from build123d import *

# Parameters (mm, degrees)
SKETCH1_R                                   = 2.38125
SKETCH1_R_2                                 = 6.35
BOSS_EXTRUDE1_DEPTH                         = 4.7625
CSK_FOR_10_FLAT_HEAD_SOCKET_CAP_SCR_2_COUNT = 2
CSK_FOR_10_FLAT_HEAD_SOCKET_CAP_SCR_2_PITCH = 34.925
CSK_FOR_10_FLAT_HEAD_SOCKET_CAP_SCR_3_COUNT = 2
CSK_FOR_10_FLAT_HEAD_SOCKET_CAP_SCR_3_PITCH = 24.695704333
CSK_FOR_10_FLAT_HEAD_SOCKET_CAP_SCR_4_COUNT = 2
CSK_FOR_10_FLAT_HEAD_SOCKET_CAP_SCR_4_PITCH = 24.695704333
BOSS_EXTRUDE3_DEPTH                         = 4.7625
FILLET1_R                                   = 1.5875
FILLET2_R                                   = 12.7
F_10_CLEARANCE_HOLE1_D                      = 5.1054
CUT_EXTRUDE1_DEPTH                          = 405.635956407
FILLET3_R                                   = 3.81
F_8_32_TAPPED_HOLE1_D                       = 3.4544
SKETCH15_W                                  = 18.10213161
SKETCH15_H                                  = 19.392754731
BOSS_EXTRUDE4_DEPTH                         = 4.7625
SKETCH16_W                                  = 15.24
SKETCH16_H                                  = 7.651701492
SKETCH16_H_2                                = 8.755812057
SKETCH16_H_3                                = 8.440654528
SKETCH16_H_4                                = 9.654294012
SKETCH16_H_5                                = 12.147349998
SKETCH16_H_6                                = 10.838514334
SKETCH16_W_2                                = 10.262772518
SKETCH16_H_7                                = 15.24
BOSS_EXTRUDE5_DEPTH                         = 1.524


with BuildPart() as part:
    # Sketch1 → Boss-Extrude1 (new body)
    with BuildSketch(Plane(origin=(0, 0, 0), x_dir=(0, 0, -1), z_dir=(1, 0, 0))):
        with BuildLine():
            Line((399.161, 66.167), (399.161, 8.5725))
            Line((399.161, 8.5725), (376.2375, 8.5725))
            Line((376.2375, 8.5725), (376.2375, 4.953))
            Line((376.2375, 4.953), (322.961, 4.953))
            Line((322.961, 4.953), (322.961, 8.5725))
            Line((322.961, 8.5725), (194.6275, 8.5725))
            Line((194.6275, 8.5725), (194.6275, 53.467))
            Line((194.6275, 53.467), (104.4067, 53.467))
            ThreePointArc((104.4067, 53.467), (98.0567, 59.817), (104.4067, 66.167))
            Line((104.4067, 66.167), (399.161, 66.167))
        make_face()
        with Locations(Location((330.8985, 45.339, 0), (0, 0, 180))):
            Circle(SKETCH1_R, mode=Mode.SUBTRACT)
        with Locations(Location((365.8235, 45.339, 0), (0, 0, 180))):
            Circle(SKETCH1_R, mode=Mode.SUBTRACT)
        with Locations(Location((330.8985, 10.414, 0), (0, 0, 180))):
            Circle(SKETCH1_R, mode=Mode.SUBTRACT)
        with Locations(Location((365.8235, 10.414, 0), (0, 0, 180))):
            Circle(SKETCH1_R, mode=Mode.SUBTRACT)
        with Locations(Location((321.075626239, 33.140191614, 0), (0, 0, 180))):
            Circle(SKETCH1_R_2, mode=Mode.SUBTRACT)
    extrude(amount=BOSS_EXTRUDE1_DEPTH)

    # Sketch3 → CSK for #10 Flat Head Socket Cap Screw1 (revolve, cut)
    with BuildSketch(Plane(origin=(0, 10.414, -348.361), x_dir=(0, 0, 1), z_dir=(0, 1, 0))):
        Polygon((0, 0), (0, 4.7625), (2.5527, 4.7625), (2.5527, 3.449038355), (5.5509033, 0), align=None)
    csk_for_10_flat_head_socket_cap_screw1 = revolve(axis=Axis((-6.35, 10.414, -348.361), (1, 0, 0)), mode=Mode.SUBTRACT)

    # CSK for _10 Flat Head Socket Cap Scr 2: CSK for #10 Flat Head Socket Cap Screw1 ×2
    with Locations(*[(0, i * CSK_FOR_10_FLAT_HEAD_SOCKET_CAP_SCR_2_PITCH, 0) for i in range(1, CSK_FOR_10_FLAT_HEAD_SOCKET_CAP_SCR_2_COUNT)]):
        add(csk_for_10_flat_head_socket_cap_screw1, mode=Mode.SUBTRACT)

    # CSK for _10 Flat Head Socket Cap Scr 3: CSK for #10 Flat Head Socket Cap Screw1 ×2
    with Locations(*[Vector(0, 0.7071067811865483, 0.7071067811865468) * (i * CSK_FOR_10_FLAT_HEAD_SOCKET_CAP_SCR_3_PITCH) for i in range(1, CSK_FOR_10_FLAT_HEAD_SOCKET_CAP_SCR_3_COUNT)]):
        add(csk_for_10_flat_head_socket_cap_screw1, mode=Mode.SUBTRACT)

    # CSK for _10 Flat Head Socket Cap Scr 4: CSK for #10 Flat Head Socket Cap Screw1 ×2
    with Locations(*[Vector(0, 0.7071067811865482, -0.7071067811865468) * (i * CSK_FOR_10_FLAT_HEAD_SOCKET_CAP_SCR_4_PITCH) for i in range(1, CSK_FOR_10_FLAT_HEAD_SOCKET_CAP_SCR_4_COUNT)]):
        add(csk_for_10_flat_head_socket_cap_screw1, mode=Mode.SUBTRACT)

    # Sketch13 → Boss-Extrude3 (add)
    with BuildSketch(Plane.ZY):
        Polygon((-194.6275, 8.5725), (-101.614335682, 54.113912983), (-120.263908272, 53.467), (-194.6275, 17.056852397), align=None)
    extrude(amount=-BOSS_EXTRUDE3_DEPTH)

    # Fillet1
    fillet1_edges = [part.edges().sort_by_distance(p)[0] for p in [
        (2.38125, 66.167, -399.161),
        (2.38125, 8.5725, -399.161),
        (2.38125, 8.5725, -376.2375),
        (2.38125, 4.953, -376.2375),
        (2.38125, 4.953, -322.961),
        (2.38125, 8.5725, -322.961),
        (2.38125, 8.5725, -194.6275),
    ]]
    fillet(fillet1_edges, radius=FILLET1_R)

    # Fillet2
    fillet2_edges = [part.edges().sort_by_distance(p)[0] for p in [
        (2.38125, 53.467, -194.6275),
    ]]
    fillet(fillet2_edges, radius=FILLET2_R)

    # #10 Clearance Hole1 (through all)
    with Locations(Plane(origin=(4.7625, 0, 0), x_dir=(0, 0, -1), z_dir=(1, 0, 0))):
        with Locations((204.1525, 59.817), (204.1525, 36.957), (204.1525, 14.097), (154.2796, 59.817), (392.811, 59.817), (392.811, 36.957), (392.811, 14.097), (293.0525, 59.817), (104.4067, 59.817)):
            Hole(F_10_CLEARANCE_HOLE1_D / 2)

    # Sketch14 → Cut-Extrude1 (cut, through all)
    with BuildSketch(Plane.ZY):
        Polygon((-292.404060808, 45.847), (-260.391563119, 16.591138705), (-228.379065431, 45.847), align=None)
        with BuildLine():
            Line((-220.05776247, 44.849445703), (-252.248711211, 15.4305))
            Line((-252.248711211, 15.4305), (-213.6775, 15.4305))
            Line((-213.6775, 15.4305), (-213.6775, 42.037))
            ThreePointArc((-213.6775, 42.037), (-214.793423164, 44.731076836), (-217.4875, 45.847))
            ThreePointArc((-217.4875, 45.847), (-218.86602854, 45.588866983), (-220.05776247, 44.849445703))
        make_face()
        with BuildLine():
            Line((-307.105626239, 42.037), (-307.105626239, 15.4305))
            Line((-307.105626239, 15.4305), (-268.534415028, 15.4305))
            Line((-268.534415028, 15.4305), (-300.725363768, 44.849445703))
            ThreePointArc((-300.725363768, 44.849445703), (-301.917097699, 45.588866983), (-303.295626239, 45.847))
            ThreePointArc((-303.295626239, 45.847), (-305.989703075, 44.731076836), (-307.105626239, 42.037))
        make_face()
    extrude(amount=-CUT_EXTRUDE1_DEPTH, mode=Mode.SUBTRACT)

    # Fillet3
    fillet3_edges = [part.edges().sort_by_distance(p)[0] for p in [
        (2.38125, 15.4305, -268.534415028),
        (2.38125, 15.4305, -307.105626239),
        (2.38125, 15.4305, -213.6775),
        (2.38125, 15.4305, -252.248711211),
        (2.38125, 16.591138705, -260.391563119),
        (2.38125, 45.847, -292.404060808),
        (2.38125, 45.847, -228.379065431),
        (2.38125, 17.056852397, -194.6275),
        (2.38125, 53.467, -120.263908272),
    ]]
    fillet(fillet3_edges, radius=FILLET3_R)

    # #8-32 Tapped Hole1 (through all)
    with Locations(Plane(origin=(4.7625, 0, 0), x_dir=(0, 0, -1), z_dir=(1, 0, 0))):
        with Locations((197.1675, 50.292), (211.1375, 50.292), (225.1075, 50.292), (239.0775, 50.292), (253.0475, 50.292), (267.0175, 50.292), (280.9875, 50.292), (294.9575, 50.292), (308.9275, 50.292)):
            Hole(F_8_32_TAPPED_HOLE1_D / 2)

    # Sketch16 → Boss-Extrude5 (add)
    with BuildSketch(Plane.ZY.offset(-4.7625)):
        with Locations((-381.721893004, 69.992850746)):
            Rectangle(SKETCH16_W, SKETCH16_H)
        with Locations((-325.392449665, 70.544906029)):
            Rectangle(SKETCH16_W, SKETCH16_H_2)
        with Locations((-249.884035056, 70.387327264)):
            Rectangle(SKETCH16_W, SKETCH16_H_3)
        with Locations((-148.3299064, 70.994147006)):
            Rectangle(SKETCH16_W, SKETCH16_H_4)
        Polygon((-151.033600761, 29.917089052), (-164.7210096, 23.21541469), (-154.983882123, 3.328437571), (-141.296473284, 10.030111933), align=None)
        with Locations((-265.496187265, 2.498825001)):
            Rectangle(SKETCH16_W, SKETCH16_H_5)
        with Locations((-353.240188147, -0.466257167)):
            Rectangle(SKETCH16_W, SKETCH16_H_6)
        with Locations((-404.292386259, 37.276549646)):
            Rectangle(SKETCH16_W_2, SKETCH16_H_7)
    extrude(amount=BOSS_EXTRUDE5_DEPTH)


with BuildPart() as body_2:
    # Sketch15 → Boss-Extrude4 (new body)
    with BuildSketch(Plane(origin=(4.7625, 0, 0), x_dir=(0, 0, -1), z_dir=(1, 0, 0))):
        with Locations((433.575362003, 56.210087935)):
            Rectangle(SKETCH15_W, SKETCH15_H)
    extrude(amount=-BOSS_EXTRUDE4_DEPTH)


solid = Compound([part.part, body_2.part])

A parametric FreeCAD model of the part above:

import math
import FreeCAD as App
import Part
import Sketcher

V = App.Vector
Q = App.Units.Quantity


def edges_at(feature, points):
    """Names of the edges that pass closest to the given points."""
    edges = feature.Shape.Edges
    near = lambda p: min(range(len(edges)), key=lambda i: edges[i].distToShape(Part.Vertex(*p))[0])
    return sorted({f"Edge{near(p) + 1}" for p in points})


def add_polygon(sketch, points):
    """Adds a closed chain of lines whose ends are joined by coincident constraints."""
    first, n = sketch.GeometryCount, len(points)
    for a, b in zip(points, points[1:] + points[:1]):
        sketch.addGeometry(Part.LineSegment(App.Vector(*a, 0), App.Vector(*b, 0)), False)
    for i in range(n):
        sketch.addConstraint(Sketcher.Constraint("Coincident", first + i, 2, first + (i + 1) % n, 1))

doc = App.newDocument("Part")
params = doc.addObject("Spreadsheet::Sheet", "Params")
for row, (alias, value) in enumerate([
    ("sketch1_diameter", "0.5 in"),
    ("sketch1_diameter2", "0.1875 in"),
    ("sketch1_height", "3.552 in"),
    ("pad1_length", "0.1875 in"),
    ("sketch2_width", "0.1875 in"),
    ("groove_angle", "360 deg"),
    ("linearpattern_pitch", "1.375 in"),
    ("linearpattern2_pitch", "24.695704 mm"),
    ("linearpattern3_pitch", "24.695704 mm"),
    ("pad2_length", "0.1875 in"),
    ("fillet_radius", "0.0625 in"),
    ("fillet2_radius", "0.5 in"),
    ("sketch4_diameter", "0.201 in"),
    ("hole_diameter", "0.201 in"),
    ("sketch5_radius", "0.15 in"),
    ("fillet3_radius", "0.15 in"),
    ("sketch6_diameter", "0.136 in"),
    ("hole2_diameter", "0.136 in"),
    ("sketch7_width", "0.6 in"),
    ("sketch7_length", "0.6 in"),
    ("pad3_length", "0.06 in"),
    ("pad4_length", "0.1875 in"),
], start=1):
    params.set(f"A{row}", alias)
    params.set(f"B{row}", "=" + value)
    params.setAlias(f"B{row}", alias)

body = doc.addObject("PartDesign::Body", "Body")

sketch1 = body.newObject("Sketcher::SketchObject", "Sketch")
sketch1.AttachmentSupport = (doc.getObject("YZ_Plane"), [""])
sketch1.MapMode = "FlatFace"
sketch1.addGeometry([
    Part.LineSegment(V(8.6, -399.2, 0), V(66.2, -399.2, 0)),
    Part.LineSegment(V(66.2, -399.2, 0), V(66.2, -104.4, 0)),
    Part.ArcOfCircle(Part.Circle(V(59.8, -104.4, 0), V(0, 0, 1), 6.3), math.radians(0), math.radians(180)),
    Part.LineSegment(V(53.5, -104.4, 0), V(53.5, -194.6, 0)),
    Part.LineSegment(V(53.5, -194.6, 0), V(8.6, -194.6, 0)),
    Part.LineSegment(V(8.6, -194.6, 0), V(8.6, -323, 0)),
    Part.LineSegment(V(8.6, -323, 0), V(5, -323, 0)),
    Part.LineSegment(V(5, -323, 0), V(5, -376.2, 0)),
    Part.LineSegment(V(5, -376.2, 0), V(8.6, -376.2, 0)),
    Part.LineSegment(V(8.6, -376.2, 0), V(8.6, -399.2, 0)),
    Part.Circle(V(10.4, -365.8, 0), V(0, 0, 1), 2.4),
    Part.Circle(V(10.4, -330.9, 0), V(0, 0, 1), 2.4),
    Part.Circle(V(45.3, -365.8, 0), V(0, 0, 1), 2.4),
    Part.Circle(V(33.1, -321.1, 0), V(0, 0, 1), 6.3),
    Part.Circle(V(45.3, -330.9, 0), V(0, 0, 1), 2.4),
], False)
sketch1.addConstraint([
    Sketcher.Constraint("Coincident", 0, 2, 1, 1),
    Sketcher.Constraint("Tangent", 1, 2, 2, 1),
    Sketcher.Constraint("Tangent", 2, 2, 3, 1),
    Sketcher.Constraint("Coincident", 3, 2, 4, 1),
    Sketcher.Constraint("Coincident", 4, 2, 5, 1),
    Sketcher.Constraint("Coincident", 5, 2, 6, 1),
    Sketcher.Constraint("Coincident", 6, 2, 7, 1),
    Sketcher.Constraint("Coincident", 7, 2, 8, 1),
    Sketcher.Constraint("Coincident", 8, 2, 9, 1),
    Sketcher.Constraint("Coincident", 9, 2, 0, 1),
    Sketcher.Constraint("Horizontal", 0),
    Sketcher.Constraint("Vertical", 1),
    Sketcher.Constraint("Vertical", 3),
    Sketcher.Constraint("Horizontal", 4),
    Sketcher.Constraint("Vertical", 5),
    Sketcher.Constraint("Horizontal", 6),
    Sketcher.Constraint("Vertical", 7),
    Sketcher.Constraint("Horizontal", 8),
    Sketcher.Constraint("Vertical", 9),
    Sketcher.Constraint("Equal", 10, 11),
    Sketcher.Constraint("Equal", 11, 12),
    Sketcher.Constraint("Equal", 2, 13),
    Sketcher.Constraint("Equal", 12, 14),
    Sketcher.Constraint("Horizontal", 10, 3, 12, 3),
    Sketcher.Constraint("Horizontal", 11, 3, 14, 3),
    Sketcher.Constraint("Vertical", 10, 3, 11, 3),
    Sketcher.Constraint("Vertical", 12, 3, 14, 3),
    Sketcher.Constraint("Vertical", 5, 2, 8, 2),
    Sketcher.Constraint("Diameter", 13, Q("0.5 in")),
    Sketcher.Constraint("Diameter", 10, Q("0.1875 in")),
    Sketcher.Constraint("DistanceY", 3, 2, 3, 1, Q("3.552 in")),
    Sketcher.Constraint("DistanceX", -1, 1, 10, 3, Q("0.41 in")),
    Sketcher.Constraint("DistanceX", 12, 3, 2, 3, Q("0.57 in")),
    Sketcher.Constraint("DistanceX", 6, 2, 14, 3, Q("1.59 in")),
    Sketcher.Constraint("DistanceY", 7, 2, 10, 3, Q("0.41 in")),
    Sketcher.Constraint("DistanceX", 0, 1, 0, 2, Q("2.2675 in")),
    Sketcher.Constraint("DistanceY", 1, 1, 1, 2, Q("11.6045 in")),
    Sketcher.Constraint("DistanceY", 5, 2, 5, 1, Q("5.0525 in")),
    Sketcher.Constraint("DistanceY", 7, 2, 7, 1, Q("2.0975 in")),
    Sketcher.Constraint("DistanceX", -1, 1, 2, 3, Q("2.355 in")),
    Sketcher.Constraint("DistanceY", 0, 2, -1, 1, Q("15.715 in")),
    Sketcher.Constraint("DistanceY", 10, 3, 11, 3, Q("1.375 in")),
    Sketcher.Constraint("DistanceX", -1, 1, 13, 3, 33.140192),
    Sketcher.Constraint("DistanceY", 13, 3, -1, 1, 321.075626),
])
sketch1.setExpression("Constraints[28]", "Params.sketch1_diameter")
sketch1.setExpression("Constraints[29]", "Params.sketch1_diameter2")
sketch1.setExpression("Constraints[30]", "Params.sketch1_height")
pad1 = body.newObject("PartDesign::Pad", "Pad")
pad1.Profile = sketch1
pad1.setExpression("Length", "Params.pad1_length")

sketch2 = body.newObject("Sketcher::SketchObject", "Sketch001")
sketch2.AttachmentSupport = (doc.getObject("XZ_Plane"), [""])
sketch2.MapMode = "FlatFace"
sketch2.AttachmentOffset = App.Placement(V(0, 0, -0.41 * 25.4), App.Rotation())
add_polygon(sketch2, [(4.8, -348.4), (0, -348.4), (0, -342.8), (3.4, -345.8), (4.8, -345.8)])
sketch2.addGeometry(Part.LineSegment(V(0, -348.4, 0), V(4.8, -348.4, 0)), True)
sketch2.addConstraint([
    Sketcher.Constraint("Horizontal", 0),
    Sketcher.Constraint("Vertical", 1),
    Sketcher.Constraint("Horizontal", 3),
    Sketcher.Constraint("Vertical", 4),
    Sketcher.Constraint("Horizontal", 5),
    Sketcher.Constraint("Coincident", 5, 1, 0, 2),
    Sketcher.Constraint("PointOnObject", 0, 2, -2),
    Sketcher.Constraint("Vertical", 3, 2, 5, 2),
    Sketcher.Constraint("Angle", 2, Q("-41 deg")),
    Sketcher.Constraint("DistanceX", 0, 2, 0, 1, Q("0.1875 in")),
    Sketcher.Constraint("DistanceY", 4, 2, 4, 1, Q("0.1005 in")),
    Sketcher.Constraint("DistanceY", 0, 2, -1, 1, Q("13.715 in")),
    Sketcher.Constraint("DistanceX", 3, 1, 3, 2, 1.313462),
])
sketch2.setExpression("Constraints[14]", "Params.sketch2_width")
groove = body.newObject("PartDesign::Groove", "Groove")
groove.Profile = sketch2
groove.ReferenceAxis = (sketch2, ["Axis0"])
groove.setExpression("Angle", "Params.groove_angle")
doc.recompute()

linearpattern = body.newObject("PartDesign::LinearPattern", "LinearPattern")
linearpattern.Originals = [groove]
linearpattern.Direction = (doc.getObject("Y_Axis"), [""])
linearpattern.Mode = "offset"
linearpattern.setExpression("Offset", "Params.linearpattern_pitch")
linearpattern.Occurrences = 2
body.Tip = linearpattern
doc.recompute()

datumline = body.newObject("PartDesign::Line", "DatumLine")
datumline.Placement = App.Placement(V(0, 0, 0), App.Rotation(V(0, 0, 1), V(0, 0.707106781, 0.707106781)))
linearpattern2 = body.newObject("PartDesign::LinearPattern", "LinearPattern001")
linearpattern2.Originals = [groove]
linearpattern2.Direction = (datumline, [""])
linearpattern2.Mode = "offset"
linearpattern2.setExpression("Offset", "Params.linearpattern2_pitch")
linearpattern2.Occurrences = 2
body.Tip = linearpattern2
doc.recompute()

datumline2 = body.newObject("PartDesign::Line", "DatumLine001")
datumline2.Placement = App.Placement(V(0, 0, 0), App.Rotation(V(0, 0, 1), V(0, 0.707106781, -0.707106781)))
linearpattern3 = body.newObject("PartDesign::LinearPattern", "LinearPattern002")
linearpattern3.Originals = [groove]
linearpattern3.Direction = (datumline2, [""])
linearpattern3.Mode = "offset"
linearpattern3.setExpression("Offset", "Params.linearpattern3_pitch")
linearpattern3.Occurrences = 2
body.Tip = linearpattern3

sketch3 = body.newObject("Sketcher::SketchObject", "Sketch002")
sketch3.AttachmentSupport = (doc.getObject("YZ_Plane"), [""])
sketch3.MapMode = "FlatFace"
add_polygon(sketch3, [(9, -195), (54, -102), (53, -120), (17, -195)])
sketch3.addConstraint([
    Sketcher.Constraint("Horizontal", 3),
    Sketcher.Constraint("Parallel", 0, 2),
    Sketcher.Constraint("DistanceX", -1, 1, 1, 2, Q("2.105 in")),
    Sketcher.Constraint("DistanceY", 2, 2, -1, 1, Q("7.6625 in")),
    Sketcher.Constraint("DistanceX", -1, 1, 3, 2, Q("0.3375 in")),
    Sketcher.Constraint("Distance", 0, 103.56384),
    Sketcher.Constraint("Distance", 1, 18.660789),
    Sketcher.Constraint("Distance", 2, 82.798808),
])
pad2 = body.newObject("PartDesign::Pad", "Pad001")
pad2.Profile = sketch3
pad2.setExpression("Length", "Params.pad2_length")
doc.recompute()

fillet = body.newObject("PartDesign::Fillet", "Fillet")
fillet.Base = (pad2, edges_at(pad2, [
    (2.381, 66.167, -399.161),
    (2.381, 8.572, -399.161),
    (2.381, 8.572, -376.238),
    (2.381, 4.953, -376.238),
    (2.381, 4.953, -322.961),
    (2.381, 8.572, -322.961),
    (2.381, 8.572, -194.627),
]))
fillet.setExpression("Radius", "Params.fillet_radius")
doc.recompute()

fillet2 = body.newObject("PartDesign::Fillet", "Fillet001")
fillet2.Base = (fillet, edges_at(fillet, [(2.381, 53.467, -194.627)]))
fillet2.setExpression("Radius", "Params.fillet2_radius")

sketch4 = body.newObject("Sketcher::SketchObject", "Sketch003")
sketch4.AttachmentSupport = (doc.getObject("YZ_Plane"), [""])
sketch4.MapMode = "FlatFace"
sketch4.AttachmentOffset = App.Placement(V(0, 0, 0.1875 * 25.4), App.Rotation())
sketch4.addGeometry([
    Part.Circle(V(59.8, -204.2, 0), V(0, 0, 1), 2.6),
    Part.Circle(V(37, -204.2, 0), V(0, 0, 1), 2.6),
    Part.Circle(V(14.1, -204.2, 0), V(0, 0, 1), 2.6),
    Part.Circle(V(59.8, -154.3, 0), V(0, 0, 1), 2.6),
    Part.Circle(V(59.8, -392.8, 0), V(0, 0, 1), 2.6),
    Part.Circle(V(37, -392.8, 0), V(0, 0, 1), 2.6),
    Part.Circle(V(14.1, -392.8, 0), V(0, 0, 1), 2.6),
    Part.Circle(V(59.8, -293.1, 0), V(0, 0, 1), 2.6),
    Part.Circle(V(59.8, -104.4, 0), V(0, 0, 1), 2.6),
], False)
sketch4.addConstraint([
    Sketcher.Constraint("Equal", 0, 1),
    Sketcher.Constraint("Equal", 1, 2),
    Sketcher.Constraint("Equal", 2, 3),
    Sketcher.Constraint("Equal", 3, 4),
    Sketcher.Constraint("Equal", 4, 5),
    Sketcher.Constraint("Equal", 5, 6),
    Sketcher.Constraint("Equal", 6, 7),
    Sketcher.Constraint("Equal", 7, 8),
    Sketcher.Constraint("Horizontal", 0, 3, 1, 3),
    Sketcher.Constraint("Horizontal", 1, 3, 2, 3),
    Sketcher.Constraint("Horizontal", 4, 3, 5, 3),
    Sketcher.Constraint("Horizontal", 5, 3, 6, 3),
    Sketcher.Constraint("Vertical", 0, 3, 3, 3),
    Sketcher.Constraint("Vertical", 3, 3, 4, 3),
    Sketcher.Constraint("Vertical", 1, 3, 5, 3),
    Sketcher.Constraint("Vertical", 2, 3, 6, 3),
    Sketcher.Constraint("Vertical", 4, 3, 7, 3),
    Sketcher.Constraint("Vertical", 7, 3, 8, 3),
    Sketcher.Constraint("Diameter", 0, Q("0.201 in")),
    Sketcher.Constraint("DistanceX", 1, 3, 0, 3, Q("0.9 in")),
    Sketcher.Constraint("DistanceX", 2, 3, 1, 3, Q("0.9 in")),
    Sketcher.Constraint("DistanceY", 7, 3, 0, 3, Q("3.5 in")),
    Sketcher.Constraint("DistanceX", -1, 1, 0, 3, Q("2.355 in")),
    Sketcher.Constraint("DistanceY", 3, 3, -1, 1, Q("6.074 in")),
    Sketcher.Constraint("DistanceY", 4, 3, -1, 1, Q("15.465 in")),
    Sketcher.Constraint("DistanceY", 0, 3, 8, 3, Q("3.927 in")),
    Sketcher.Constraint("DistanceY", 0, 3, -1, 1, Q("8.0375 in")),
])
sketch4.setExpression("Constraints[18]", "Params.sketch4_diameter")
doc.recompute()
hole = body.newObject("PartDesign::Hole", "Hole")
hole.Profile = sketch4
hole.ThreadType = "None"
hole.setExpression("Diameter", "Params.hole_diameter")
hole.DepthType = "ThroughAll"

sketch5 = body.newObject("Sketcher::SketchObject", "Sketch004")
sketch5.AttachmentSupport = (doc.getObject("YZ_Plane"), [""])
sketch5.MapMode = "FlatFace"
add_polygon(sketch5, [(45.8, -292.4), (16.6, -260.4), (45.8, -228.4)])
sketch5.addGeometry(Part.LineSegment(V(44.8, -220.1, 0), V(15.4, -252.2, 0)), False)
sketch5.addGeometry(Part.LineSegment(V(15.4, -252.2, 0), V(15.4, -213.7, 0)), False)
sketch5.addGeometry(Part.LineSegment(V(15.4, -213.7, 0), V(42, -213.7, 0)), False)
sketch5.addGeometry(Part.ArcOfCircle(Part.Circle(V(42, -217.5, 0), V(0, 0, 1), 3.8), math.radians(0), math.radians(90)), False)
sketch5.addGeometry(Part.ArcOfCircle(Part.Circle(V(42, -217.5, 0), V(0, 0, 1), 3.8), math.radians(-42), math.radians(0)), False)
sketch5.addGeometry(Part.LineSegment(V(42, -307.1, 0), V(15.4, -307.1, 0)), False)
sketch5.addGeometry(Part.LineSegment(V(15.4, -307.1, 0), V(15.4, -268.5, 0)), False)
sketch5.addGeometry(Part.LineSegment(V(15.4, -268.5, 0), V(44.8, -300.7, 0)), False)
sketch5.addGeometry(Part.ArcOfCircle(Part.Circle(V(42, -303.3, 0), V(0, 0, 1), 3.8), math.radians(0), math.radians(42)), False)
sketch5.addGeometry(Part.ArcOfCircle(Part.Circle(V(42, -303.3, 0), V(0, 0, 1), 3.8), math.radians(-90), math.radians(0)), False)
sketch5.addConstraint([
    Sketcher.Constraint("Coincident", 3, 2, 4, 1),
    Sketcher.Constraint("Coincident", 4, 2, 5, 1),
    Sketcher.Constraint("Tangent", 5, 2, 6, 2),
    Sketcher.Constraint("Tangent", 6, 1, 7, 2),
    Sketcher.Constraint("Tangent", 7, 1, 3, 1),
    Sketcher.Constraint("Coincident", 8, 2, 9, 1),
    Sketcher.Constraint("Coincident", 9, 2, 10, 1),
    Sketcher.Constraint("Tangent", 10, 2, 11, 2),
    Sketcher.Constraint("Tangent", 11, 1, 12, 2),
    Sketcher.Constraint("Tangent", 12, 1, 8, 1),
    Sketcher.Constraint("Vertical", 2),
    Sketcher.Constraint("Vertical", 4),
    Sketcher.Constraint("Horizontal", 5),
    Sketcher.Constraint("Horizontal", 8),
    Sketcher.Constraint("Vertical", 9),
    Sketcher.Constraint("Equal", 6, 7),
    Sketcher.Constraint("Equal", 7, 11),
    Sketcher.Constraint("Equal", 11, 12),
    Sketcher.Constraint("Parallel", 1, 3),
    Sketcher.Constraint("Parallel", 0, 10),
    Sketcher.Constraint("Horizontal", 7, 3, 6, 1),
    Sketcher.Constraint("Horizontal", 12, 3, 11, 1),
    Sketcher.Constraint("Vertical", 7, 3, 11, 3),
    Sketcher.Constraint("Vertical", 2, 2, 6, 1),
    Sketcher.Constraint("Vertical", 4, 2, 8, 2),
    Sketcher.Constraint("Vertical", 7, 1, 10, 2),
    Sketcher.Constraint("Radius", 6, Q("0.15 in")),
    Sketcher.Constraint("DistanceX", 5, 1, 5, 2, Q("1.0475 in")),
    Sketcher.Constraint("DistanceX", -1, 1, 6, 3, Q("1.655 in")),
    Sketcher.Constraint("DistanceY", 6, 3, -1, 1, Q("8.5625 in")),
    Sketcher.Constraint("Distance", 0, 43.367101),
    Sketcher.Constraint("DistanceY", 4, 1, 4, 2, 38.571211),
    Sketcher.Constraint("DistanceY", 2, 2, -1, 1, 292.404061),
    Sketcher.Constraint("DistanceY", 12, 3, 1, 2, 74.916561),
])
sketch5.setExpression("Constraints[29]", "Params.sketch5_radius")
pocket1 = body.newObject("PartDesign::Pocket", "Pocket")
pocket1.Profile = sketch5
pocket1.Type = "ThroughAll"
pocket1.Reversed = True
doc.recompute()

fillet3 = body.newObject("PartDesign::Fillet", "Fillet002")
fillet3.Base = (pocket1, edges_at(pocket1, [
    (2.381, 15.431, -268.534),
    (2.381, 15.431, -307.106),
    (2.381, 15.431, -213.678),
    (2.381, 15.431, -252.249),
    (2.381, 16.591, -260.392),
    (2.381, 45.847, -292.404),
    (2.381, 45.847, -228.379),
    (2.381, 17.057, -194.627),
    (2.381, 53.467, -120.264),
]))
fillet3.setExpression("Radius", "Params.fillet3_radius")

sketch6 = body.newObject("Sketcher::SketchObject", "Sketch005")
sketch6.AttachmentSupport = (doc.getObject("YZ_Plane"), [""])
sketch6.MapMode = "FlatFace"
sketch6.AttachmentOffset = App.Placement(V(0, 0, 0.1875 * 25.4), App.Rotation())
sketch6.addGeometry([
    Part.Circle(V(50.3, -197.2, 0), V(0, 0, 1), 1.7),
    Part.Circle(V(50.3, -211.1, 0), V(0, 0, 1), 1.7),
    Part.Circle(V(50.3, -225.1, 0), V(0, 0, 1), 1.7),
    Part.Circle(V(50.3, -239.1, 0), V(0, 0, 1), 1.7),
    Part.Circle(V(50.3, -253, 0), V(0, 0, 1), 1.7),
    Part.Circle(V(50.3, -267, 0), V(0, 0, 1), 1.7),
    Part.Circle(V(50.3, -281, 0), V(0, 0, 1), 1.7),
    Part.Circle(V(50.3, -295, 0), V(0, 0, 1), 1.7),
    Part.Circle(V(50.3, -308.9, 0), V(0, 0, 1), 1.7),
], False)
sketch6.addConstraint([
    Sketcher.Constraint("Equal", 0, 1),
    Sketcher.Constraint("Equal", 1, 2),
    Sketcher.Constraint("Equal", 2, 3),
    Sketcher.Constraint("Equal", 3, 4),
    Sketcher.Constraint("Equal", 4, 5),
    Sketcher.Constraint("Equal", 5, 6),
    Sketcher.Constraint("Equal", 6, 7),
    Sketcher.Constraint("Equal", 7, 8),
    Sketcher.Constraint("Vertical", 0, 3, 1, 3),
    Sketcher.Constraint("Vertical", 1, 3, 2, 3),
    Sketcher.Constraint("Vertical", 2, 3, 3, 3),
    Sketcher.Constraint("Vertical", 3, 3, 4, 3),
    Sketcher.Constraint("Vertical", 4, 3, 5, 3),
    Sketcher.Constraint("Vertical", 5, 3, 6, 3),
    Sketcher.Constraint("Vertical", 6, 3, 7, 3),
    Sketcher.Constraint("Vertical", 7, 3, 8, 3),
    Sketcher.Constraint("Diameter", 0, Q("0.136 in")),
    Sketcher.Constraint("DistanceY", 2, 3, 0, 3, Q("1.1 in")),
    Sketcher.Constraint("DistanceY", 3, 3, 1, 3, Q("1.1 in")),
    Sketcher.Constraint("DistanceY", 4, 3, 2, 3, Q("1.1 in")),
    Sketcher.Constraint("DistanceY", 5, 3, 3, 3, Q("1.1 in")),
    Sketcher.Constraint("DistanceY", 6, 3, 4, 3, Q("1.1 in")),
    Sketcher.Constraint("DistanceY", 7, 3, 5, 3, Q("1.1 in")),
    Sketcher.Constraint("DistanceY", 8, 3, 6, 3, Q("1.1 in")),
    Sketcher.Constraint("DistanceX", -1, 1, 0, 3, Q("1.98 in")),
    Sketcher.Constraint("DistanceY", 1, 3, 0, 3, Q("0.55 in")),
    Sketcher.Constraint("DistanceY", 1, 3, -1, 1, Q("8.3125 in")),
])
sketch6.setExpression("Constraints[16]", "Params.sketch6_diameter")
doc.recompute()
hole2 = body.newObject("PartDesign::Hole", "Hole001")
hole2.Profile = sketch6
hole2.ThreadType = "None"
hole2.setExpression("Diameter", "Params.hole2_diameter")
hole2.DepthType = "ThroughAll"

sketch7 = body.newObject("Sketcher::SketchObject", "Sketch006")
sketch7.AttachmentSupport = (doc.getObject("YZ_Plane"), [""])
sketch7.MapMode = "FlatFace"
sketch7.AttachmentOffset = App.Placement(V(0, 0, 0.1875 * 25.4), App.Rotation())
add_polygon(sketch7, [(74, -389), (66, -389), (66, -374), (74, -374)])
add_polygon(sketch7, [(75, -333), (66, -333), (66, -318), (75, -318)])
add_polygon(sketch7, [(75, -258), (66, -258), (66, -242), (75, -242)])
add_polygon(sketch7, [(76, -156), (66, -156), (66, -141), (76, -141)])
add_polygon(sketch7, [(30, -151), (23, -165), (3, -155), (10, -141)])
add_polygon(sketch7, [(9, -273), (-4, -273), (-4, -258), (9, -258)])
add_polygon(sketch7, [(5, -361), (-6, -361), (-6, -346), (5, -346)])
add_polygon(sketch7, [(45, -409), (30, -409), (30, -399), (45, -399)])
sketch7.addConstraint([
    Sketcher.Constraint("Horizontal", 0),
    Sketcher.Constraint("Vertical", 1),
    Sketcher.Constraint("Horizontal", 2),
    Sketcher.Constraint("Vertical", 3),
    Sketcher.Constraint("Horizontal", 4),
    Sketcher.Constraint("Vertical", 5),
    Sketcher.Constraint("Horizontal", 6),
    Sketcher.Constraint("Vertical", 7),
    Sketcher.Constraint("Horizontal", 8),
    Sketcher.Constraint("Vertical", 9),
    Sketcher.Constraint("Horizontal", 10),
    Sketcher.Constraint("Vertical", 11),
    Sketcher.Constraint("Horizontal", 12),
    Sketcher.Constraint("Vertical", 13),
    Sketcher.Constraint("Horizontal", 14),
    Sketcher.Constraint("Vertical", 15),
    Sketcher.Constraint("Horizontal", 20),
    Sketcher.Constraint("Vertical", 21),
    Sketcher.Constraint("Horizontal", 22),
    Sketcher.Constraint("Vertical", 23),
    Sketcher.Constraint("Horizontal", 24),
    Sketcher.Constraint("Vertical", 25),
    Sketcher.Constraint("Horizontal", 26),
    Sketcher.Constraint("Vertical", 27),
    Sketcher.Constraint("Horizontal", 28),
    Sketcher.Constraint("Vertical", 29),
    Sketcher.Constraint("Horizontal", 30),
    Sketcher.Constraint("Vertical", 31),
    Sketcher.Constraint("Perpendicular", 16, 17),
    Sketcher.Constraint("Perpendicular", 17, 18),
    Sketcher.Constraint("Perpendicular", 18, 19),
    Sketcher.Constraint("Vertical", 1, 2, 4, 2),
    Sketcher.Constraint("Vertical", 5, 2, 8, 2),
    Sketcher.Constraint("Vertical", 9, 2, 12, 2),
    Sketcher.Constraint("Equal", 30, 1),
    Sketcher.Constraint("Equal", 3, 5),
    Sketcher.Constraint("Equal", 7, 9),
    Sketcher.Constraint("Equal", 11, 13),
    Sketcher.Constraint("Equal", 15, 21),
    Sketcher.Constraint("Equal", 23, 25),
    Sketcher.Constraint("DistanceX", 28, 2, 28, 1, Q("0.6 in")),
    Sketcher.Constraint("Distance", 16, Q("0.6 in")),
    Sketcher.Constraint("DistanceX", 26, 2, 4, 2, Q("2.41 in")),
    Sketcher.Constraint("DistanceX", -1, 1, 0, 2, Q("2.605 in")),
    Sketcher.Constraint("DistanceY", 29, 2, -1, 1, Q("15.715 in")),
    Sketcher.Constraint("DistanceX", 0, 2, 0, 1, 7.651701),
    Sketcher.Constraint("DistanceX", -1, 1, 22, 2, Q("0.3375 in")),
    Sketcher.Constraint("Distance", 17, 22.142798),
    Sketcher.Constraint("DistanceX", 20, 2, 20, 1, 12.14735),
    Sketcher.Constraint("DistanceY", 19, 2, -1, 1, 151.033601),
    Sketcher.Constraint("DistanceY", 25, 2, 20, 2, 72.504001),
    Sketcher.Constraint("DistanceX", 4, 2, 4, 1, 8.755812),
    Sketcher.Constraint("DistanceX", 8, 2, 8, 1, 8.440655),
    Sketcher.Constraint("DistanceX", 12, 2, 12, 1, 9.654294),
    Sketcher.Constraint("DistanceX", 24, 2, 24, 1, 10.838514),
    Sketcher.Constraint("DistanceY", 29, 1, 29, 2, 10.262773),
    Sketcher.Constraint("DistanceY", 4, 2, -1, 1, 333.01245),
    Sketcher.Constraint("DistanceY", 16, 2, -1, 1, 164.72101),
    Sketcher.Constraint("DistanceX", -1, 1, 18, 2, 10.030112),
    Sketcher.Constraint("DistanceY", 24, 2, -1, 1, 360.860188),
    Sketcher.Constraint("DistanceX", -1, 1, 28, 2, 29.65655),
    Sketcher.Constraint("DistanceY", 9, 2, 12, 2, 86.314129),
    Sketcher.Constraint("DistanceY", 28, 2, 0, 2, 20.08188),
    Sketcher.Constraint("DistanceY", 8, 2, -1, 1, 257.504035),
])
sketch7.setExpression("Constraints[72]", "Params.sketch7_width")
sketch7.setExpression("Constraints[73]", "Params.sketch7_length")
pad3 = body.newObject("PartDesign::Pad", "Pad002")
pad3.Profile = sketch7
pad3.setExpression("Length", "Params.pad3_length")
pad3.Reversed = True
body2 = doc.addObject("PartDesign::Body", "Body001")

sketch8 = body2.newObject("Sketcher::SketchObject", "Sketch007")
sketch8.AttachmentSupport = (doc.getObject("YZ_Plane001"), [""])
sketch8.MapMode = "FlatFace"
sketch8.AttachmentOffset = App.Placement(V(0, 0, 0.1875 * 25.4), App.Rotation())
add_polygon(sketch8, [(66, -425), (47, -425), (47, -443), (66, -443)])
sketch8.addConstraint([
    Sketcher.Constraint("Horizontal", 0),
    Sketcher.Constraint("Vertical", 1),
    Sketcher.Constraint("Horizontal", 2),
    Sketcher.Constraint("Vertical", 3),
    Sketcher.Constraint("DistanceY", 1, 2, 1, 1, 18.102132),
    Sketcher.Constraint("DistanceX", 0, 2, 0, 1, 19.392755),
    Sketcher.Constraint("DistanceX", -1, 1, 0, 2, 46.513711),
    Sketcher.Constraint("DistanceY", 0, 2, -1, 1, 424.524296),
])
pad4 = body2.newObject("PartDesign::Pad", "Pad003")
pad4.Profile = sketch8
pad4.setExpression("Length", "Params.pad4_length")
pad4.Reversed = True

doc.recompute()
